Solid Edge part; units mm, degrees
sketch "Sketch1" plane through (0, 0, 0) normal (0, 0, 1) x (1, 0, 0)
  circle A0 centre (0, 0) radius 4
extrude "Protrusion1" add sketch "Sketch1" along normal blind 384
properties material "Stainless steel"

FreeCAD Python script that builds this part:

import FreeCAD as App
import Part
import Sketcher
Q = App.Units.Quantity

doc = App.newDocument("Part")
body = doc.addObject("PartDesign::Body", "Body")

# Sketch on XY plane
sketch1 = doc.addObject("Sketcher::SketchObject", "Sketch")
body.addObject(sketch1)
sketch1.AttachmentSupport = (doc.XY_Plane, [""])
sketch1.MapMode = "FlatFace"
sketch1.addGeometry(Part.Circle(App.Vector(0, 0, 0), App.Vector(0, 0, 1), 4), False)
sketch1.addConstraint(Sketcher.Constraint("Coincident", 0, 3, -1, 1))
sketch1.addConstraint(Sketcher.Constraint("Diameter", 0, Q("8 mm")))
pad1 = doc.addObject("PartDesign::Pad", "Pad")
body.addObject(pad1)
pad1.Profile = sketch1
pad1.Length = 384

doc.recompute()
